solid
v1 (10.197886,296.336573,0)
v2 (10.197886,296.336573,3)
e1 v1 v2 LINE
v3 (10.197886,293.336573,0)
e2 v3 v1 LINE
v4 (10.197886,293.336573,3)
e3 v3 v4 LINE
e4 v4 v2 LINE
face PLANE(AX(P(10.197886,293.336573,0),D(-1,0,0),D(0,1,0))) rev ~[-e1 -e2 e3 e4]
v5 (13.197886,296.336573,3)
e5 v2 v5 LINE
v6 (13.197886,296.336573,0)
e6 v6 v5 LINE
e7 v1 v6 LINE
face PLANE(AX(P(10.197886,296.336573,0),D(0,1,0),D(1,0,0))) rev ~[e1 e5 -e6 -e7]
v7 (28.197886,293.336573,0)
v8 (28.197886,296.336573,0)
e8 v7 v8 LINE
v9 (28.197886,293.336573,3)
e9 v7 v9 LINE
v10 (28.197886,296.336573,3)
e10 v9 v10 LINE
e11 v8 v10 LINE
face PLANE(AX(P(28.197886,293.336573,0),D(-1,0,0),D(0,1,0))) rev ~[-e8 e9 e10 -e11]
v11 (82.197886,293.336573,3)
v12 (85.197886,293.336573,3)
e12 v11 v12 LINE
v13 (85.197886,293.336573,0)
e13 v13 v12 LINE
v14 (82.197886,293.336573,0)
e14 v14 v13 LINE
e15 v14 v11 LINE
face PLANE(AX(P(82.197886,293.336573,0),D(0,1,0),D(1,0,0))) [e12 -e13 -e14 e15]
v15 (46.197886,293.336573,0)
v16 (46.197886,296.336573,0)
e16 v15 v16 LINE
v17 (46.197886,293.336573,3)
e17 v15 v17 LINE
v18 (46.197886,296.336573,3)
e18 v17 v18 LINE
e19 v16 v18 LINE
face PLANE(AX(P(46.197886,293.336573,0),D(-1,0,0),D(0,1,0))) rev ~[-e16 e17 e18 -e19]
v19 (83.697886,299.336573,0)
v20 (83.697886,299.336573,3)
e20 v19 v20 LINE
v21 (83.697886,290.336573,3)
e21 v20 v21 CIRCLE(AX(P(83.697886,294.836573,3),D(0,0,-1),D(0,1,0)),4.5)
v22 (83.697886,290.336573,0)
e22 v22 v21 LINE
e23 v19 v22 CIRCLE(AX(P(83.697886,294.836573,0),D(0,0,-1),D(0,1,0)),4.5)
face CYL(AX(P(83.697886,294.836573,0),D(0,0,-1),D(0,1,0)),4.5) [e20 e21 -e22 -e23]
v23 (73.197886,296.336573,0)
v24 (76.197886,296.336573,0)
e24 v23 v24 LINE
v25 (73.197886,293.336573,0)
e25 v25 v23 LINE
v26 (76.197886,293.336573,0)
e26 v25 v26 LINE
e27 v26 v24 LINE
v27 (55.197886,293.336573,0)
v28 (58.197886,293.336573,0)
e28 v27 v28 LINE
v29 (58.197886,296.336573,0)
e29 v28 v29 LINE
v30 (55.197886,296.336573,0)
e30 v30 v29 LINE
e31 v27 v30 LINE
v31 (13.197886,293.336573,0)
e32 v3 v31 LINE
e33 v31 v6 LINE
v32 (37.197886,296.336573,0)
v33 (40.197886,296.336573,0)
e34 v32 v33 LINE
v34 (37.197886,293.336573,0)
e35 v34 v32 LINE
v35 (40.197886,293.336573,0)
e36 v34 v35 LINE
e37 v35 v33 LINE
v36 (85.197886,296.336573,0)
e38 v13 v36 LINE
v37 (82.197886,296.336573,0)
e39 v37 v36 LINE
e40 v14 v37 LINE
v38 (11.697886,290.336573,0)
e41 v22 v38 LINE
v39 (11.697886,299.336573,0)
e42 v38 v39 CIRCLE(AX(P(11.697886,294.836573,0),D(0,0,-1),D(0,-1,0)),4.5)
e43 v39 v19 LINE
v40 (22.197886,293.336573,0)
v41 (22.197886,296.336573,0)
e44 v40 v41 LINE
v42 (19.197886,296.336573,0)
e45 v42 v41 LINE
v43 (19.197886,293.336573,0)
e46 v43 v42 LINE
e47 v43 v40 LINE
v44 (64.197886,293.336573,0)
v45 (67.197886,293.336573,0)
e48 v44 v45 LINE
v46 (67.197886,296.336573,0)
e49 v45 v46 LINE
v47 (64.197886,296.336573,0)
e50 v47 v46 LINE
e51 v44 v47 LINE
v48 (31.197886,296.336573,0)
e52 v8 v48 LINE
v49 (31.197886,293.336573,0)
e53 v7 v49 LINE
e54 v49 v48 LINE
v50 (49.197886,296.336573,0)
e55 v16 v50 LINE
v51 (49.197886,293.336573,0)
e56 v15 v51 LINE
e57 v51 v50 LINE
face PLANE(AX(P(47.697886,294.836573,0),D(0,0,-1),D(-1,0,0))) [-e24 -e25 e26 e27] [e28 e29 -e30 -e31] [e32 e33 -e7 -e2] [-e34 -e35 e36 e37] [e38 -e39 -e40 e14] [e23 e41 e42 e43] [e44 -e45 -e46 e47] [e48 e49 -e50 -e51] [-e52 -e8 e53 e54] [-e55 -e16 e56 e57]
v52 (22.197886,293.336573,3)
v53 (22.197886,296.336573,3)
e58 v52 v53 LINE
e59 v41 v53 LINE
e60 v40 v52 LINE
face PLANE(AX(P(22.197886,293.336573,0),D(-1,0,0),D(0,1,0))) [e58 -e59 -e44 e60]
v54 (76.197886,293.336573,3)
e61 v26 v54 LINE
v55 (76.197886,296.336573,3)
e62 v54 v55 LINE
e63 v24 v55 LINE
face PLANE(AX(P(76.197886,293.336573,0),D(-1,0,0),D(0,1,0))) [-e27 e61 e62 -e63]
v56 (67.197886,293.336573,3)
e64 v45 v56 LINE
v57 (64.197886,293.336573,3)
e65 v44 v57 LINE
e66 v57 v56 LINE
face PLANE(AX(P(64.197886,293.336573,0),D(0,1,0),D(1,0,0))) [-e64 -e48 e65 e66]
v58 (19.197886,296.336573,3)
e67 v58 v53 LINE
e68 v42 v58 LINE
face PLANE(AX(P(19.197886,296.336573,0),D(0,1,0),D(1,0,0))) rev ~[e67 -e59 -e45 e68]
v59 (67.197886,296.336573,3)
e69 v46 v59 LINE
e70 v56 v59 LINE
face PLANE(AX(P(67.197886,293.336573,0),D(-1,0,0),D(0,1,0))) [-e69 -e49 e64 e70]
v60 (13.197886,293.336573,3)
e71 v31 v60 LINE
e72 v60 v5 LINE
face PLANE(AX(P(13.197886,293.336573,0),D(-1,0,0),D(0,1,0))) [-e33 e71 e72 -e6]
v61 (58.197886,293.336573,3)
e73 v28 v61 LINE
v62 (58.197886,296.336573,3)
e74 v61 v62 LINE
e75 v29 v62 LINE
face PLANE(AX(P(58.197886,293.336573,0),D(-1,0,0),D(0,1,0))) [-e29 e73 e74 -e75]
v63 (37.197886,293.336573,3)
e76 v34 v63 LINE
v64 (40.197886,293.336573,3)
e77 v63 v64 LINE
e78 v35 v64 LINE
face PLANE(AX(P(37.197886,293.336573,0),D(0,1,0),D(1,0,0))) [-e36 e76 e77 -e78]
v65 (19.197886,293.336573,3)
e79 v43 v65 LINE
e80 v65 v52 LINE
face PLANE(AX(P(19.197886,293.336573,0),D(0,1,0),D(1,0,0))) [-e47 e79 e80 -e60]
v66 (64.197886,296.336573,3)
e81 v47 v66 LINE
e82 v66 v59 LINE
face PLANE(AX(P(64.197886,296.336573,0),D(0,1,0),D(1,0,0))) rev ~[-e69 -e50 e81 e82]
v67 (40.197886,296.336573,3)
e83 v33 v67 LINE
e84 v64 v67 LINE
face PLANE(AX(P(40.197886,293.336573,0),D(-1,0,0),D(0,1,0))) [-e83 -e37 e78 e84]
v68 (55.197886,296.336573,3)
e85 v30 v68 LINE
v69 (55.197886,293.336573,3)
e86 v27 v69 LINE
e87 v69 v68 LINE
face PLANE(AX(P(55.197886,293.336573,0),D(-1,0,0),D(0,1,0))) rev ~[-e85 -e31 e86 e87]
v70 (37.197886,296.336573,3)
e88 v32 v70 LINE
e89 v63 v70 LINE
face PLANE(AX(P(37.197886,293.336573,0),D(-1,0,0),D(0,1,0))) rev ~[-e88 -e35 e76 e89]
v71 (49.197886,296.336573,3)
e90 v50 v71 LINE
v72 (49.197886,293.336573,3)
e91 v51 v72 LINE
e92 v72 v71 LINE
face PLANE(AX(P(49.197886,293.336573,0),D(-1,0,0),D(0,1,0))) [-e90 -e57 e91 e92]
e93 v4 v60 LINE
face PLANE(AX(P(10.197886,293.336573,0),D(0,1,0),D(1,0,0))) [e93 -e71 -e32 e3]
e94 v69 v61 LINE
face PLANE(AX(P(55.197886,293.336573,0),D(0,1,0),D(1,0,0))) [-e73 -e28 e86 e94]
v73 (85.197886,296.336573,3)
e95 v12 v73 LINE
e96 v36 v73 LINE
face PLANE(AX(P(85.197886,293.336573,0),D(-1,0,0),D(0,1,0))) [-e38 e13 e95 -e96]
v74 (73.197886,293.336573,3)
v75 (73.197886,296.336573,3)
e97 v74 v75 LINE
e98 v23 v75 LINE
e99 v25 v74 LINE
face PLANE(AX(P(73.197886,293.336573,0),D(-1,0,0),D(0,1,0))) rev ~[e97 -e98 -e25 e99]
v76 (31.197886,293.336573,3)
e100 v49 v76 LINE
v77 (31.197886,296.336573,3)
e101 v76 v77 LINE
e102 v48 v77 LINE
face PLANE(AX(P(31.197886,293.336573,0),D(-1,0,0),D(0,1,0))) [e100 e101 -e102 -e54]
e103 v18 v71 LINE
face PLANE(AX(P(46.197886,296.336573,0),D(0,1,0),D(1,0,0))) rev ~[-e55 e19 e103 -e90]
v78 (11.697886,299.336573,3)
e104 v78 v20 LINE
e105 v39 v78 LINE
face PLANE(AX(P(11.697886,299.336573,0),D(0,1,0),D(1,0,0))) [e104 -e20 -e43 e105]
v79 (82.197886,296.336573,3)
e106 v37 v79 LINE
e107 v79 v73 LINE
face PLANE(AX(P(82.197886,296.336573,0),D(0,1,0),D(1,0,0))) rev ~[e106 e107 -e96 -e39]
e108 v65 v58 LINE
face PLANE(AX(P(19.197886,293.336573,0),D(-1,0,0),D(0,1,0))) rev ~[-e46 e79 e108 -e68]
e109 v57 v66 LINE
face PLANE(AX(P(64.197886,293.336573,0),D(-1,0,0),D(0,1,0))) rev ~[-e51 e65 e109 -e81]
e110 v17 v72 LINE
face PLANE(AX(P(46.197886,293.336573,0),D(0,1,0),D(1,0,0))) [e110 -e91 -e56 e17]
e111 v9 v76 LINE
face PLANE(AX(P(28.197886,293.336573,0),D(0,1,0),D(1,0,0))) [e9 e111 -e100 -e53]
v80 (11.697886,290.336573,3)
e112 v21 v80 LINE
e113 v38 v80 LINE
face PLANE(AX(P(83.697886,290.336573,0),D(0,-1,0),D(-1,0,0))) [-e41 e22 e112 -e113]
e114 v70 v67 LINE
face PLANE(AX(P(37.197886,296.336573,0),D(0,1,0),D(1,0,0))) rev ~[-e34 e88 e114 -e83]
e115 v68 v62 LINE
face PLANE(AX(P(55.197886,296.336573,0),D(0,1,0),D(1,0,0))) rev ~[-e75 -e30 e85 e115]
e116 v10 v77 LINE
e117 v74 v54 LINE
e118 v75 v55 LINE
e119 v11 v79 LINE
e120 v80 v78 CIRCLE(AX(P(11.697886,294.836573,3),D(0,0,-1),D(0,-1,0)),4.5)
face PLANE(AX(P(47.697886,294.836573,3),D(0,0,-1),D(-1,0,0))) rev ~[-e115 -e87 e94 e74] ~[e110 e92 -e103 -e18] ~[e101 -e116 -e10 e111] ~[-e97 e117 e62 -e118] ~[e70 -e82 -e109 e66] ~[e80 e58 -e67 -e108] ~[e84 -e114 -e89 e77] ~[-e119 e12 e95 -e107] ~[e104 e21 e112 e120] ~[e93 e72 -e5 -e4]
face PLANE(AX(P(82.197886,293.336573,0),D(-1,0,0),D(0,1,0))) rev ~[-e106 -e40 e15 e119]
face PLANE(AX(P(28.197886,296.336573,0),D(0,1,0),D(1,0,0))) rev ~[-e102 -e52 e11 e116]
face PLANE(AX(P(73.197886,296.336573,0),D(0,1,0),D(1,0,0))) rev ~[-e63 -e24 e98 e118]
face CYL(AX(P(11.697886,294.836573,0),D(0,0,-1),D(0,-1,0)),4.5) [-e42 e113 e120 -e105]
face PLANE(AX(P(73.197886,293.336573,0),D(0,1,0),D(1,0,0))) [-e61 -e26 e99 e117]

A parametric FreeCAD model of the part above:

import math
import FreeCAD as App
import Part
import Sketcher
Q = App.Units.Quantity

doc = App.newDocument("Part")
body = doc.addObject("PartDesign::Body", "Body")

sketch1 = body.newObject("Sketcher::SketchObject", "Sketch")
sketch1.AttachmentSupport = (doc.getObject("XY_Plane"), [""])
sketch1.MapMode = "FlatFace"
sketch1.addGeometry(Part.LineSegment(App.Vector(83.697886, 299.336573, 0), App.Vector(11.697886, 299.336573, 0)), False)
sketch1.addGeometry(Part.ArcOfCircle(Part.Circle(App.Vector(11.697886, 294.836573, 0), App.Vector(0, 0, 1), 4.5), math.radians(90), math.radians(270)), False)
sketch1.addGeometry(Part.LineSegment(App.Vector(11.697886, 290.336573, 0), App.Vector(83.697886, 290.336573, 0)), False)
sketch1.addGeometry(Part.ArcOfCircle(Part.Circle(App.Vector(83.697886, 294.836573, 0), App.Vector(0, 0, 1), 4.5), math.radians(-90), math.radians(90)), False)
sketch1.addGeometry(Part.LineSegment(App.Vector(82.197886, 293.336573, 0), App.Vector(82.197886, 296.336573, 0)), False)
sketch1.addGeometry(Part.LineSegment(App.Vector(82.197886, 296.336573, 0), App.Vector(85.197886, 296.336573, 0)), False)
sketch1.addGeometry(Part.LineSegment(App.Vector(85.197886, 296.336573, 0), App.Vector(85.197886, 293.336573, 0)), False)
sketch1.addGeometry(Part.LineSegment(App.Vector(85.197886, 293.336573, 0), App.Vector(82.197886, 293.336573, 0)), False)
sketch1.addGeometry(Part.LineSegment(App.Vector(73.197886, 293.336573, 0), App.Vector(73.197886, 296.336573, 0)), False)
sketch1.addGeometry(Part.LineSegment(App.Vector(73.197886, 296.336573, 0), App.Vector(76.197886, 296.336573, 0)), False)
sketch1.addGeometry(Part.LineSegment(App.Vector(76.197886, 296.336573, 0), App.Vector(76.197886, 293.336573, 0)), False)
sketch1.addGeometry(Part.LineSegment(App.Vector(76.197886, 293.336573, 0), App.Vector(73.197886, 293.336573, 0)), False)
sketch1.addGeometry(Part.LineSegment(App.Vector(64.197886, 293.336573, 0), App.Vector(64.197886, 296.336573, 0)), False)
sketch1.addGeometry(Part.LineSegment(App.Vector(64.197886, 296.336573, 0), App.Vector(67.197886, 296.336573, 0)), False)
sketch1.addGeometry(Part.LineSegment(App.Vector(67.197886, 296.336573, 0), App.Vector(67.197886, 293.336573, 0)), False)
sketch1.addGeometry(Part.LineSegment(App.Vector(67.197886, 293.336573, 0), App.Vector(64.197886, 293.336573, 0)), False)
sketch1.addGeometry(Part.LineSegment(App.Vector(55.197886, 293.336573, 0), App.Vector(55.197886, 296.336573, 0)), False)
sketch1.addGeometry(Part.LineSegment(App.Vector(55.197886, 296.336573, 0), App.Vector(58.197886, 296.336573, 0)), False)
sketch1.addGeometry(Part.LineSegment(App.Vector(58.197886, 296.336573, 0), App.Vector(58.197886, 293.336573, 0)), False)
sketch1.addGeometry(Part.LineSegment(App.Vector(58.197886, 293.336573, 0), App.Vector(55.197886, 293.336573, 0)), False)
sketch1.addGeometry(Part.LineSegment(App.Vector(46.197886, 293.336573, 0), App.Vector(46.197886, 296.336573, 0)), False)
sketch1.addGeometry(Part.LineSegment(App.Vector(46.197886, 296.336573, 0), App.Vector(49.197886, 296.336573, 0)), False)
sketch1.addGeometry(Part.LineSegment(App.Vector(49.197886, 296.336573, 0), App.Vector(49.197886, 293.336573, 0)), False)
sketch1.addGeometry(Part.LineSegment(App.Vector(49.197886, 293.336573, 0), App.Vector(46.197886, 293.336573, 0)), False)
sketch1.addGeometry(Part.LineSegment(App.Vector(37.197886, 293.336573, 0), App.Vector(37.197886, 296.336573, 0)), False)
sketch1.addGeometry(Part.LineSegment(App.Vector(37.197886, 296.336573, 0), App.Vector(40.197886, 296.336573, 0)), False)
sketch1.addGeometry(Part.LineSegment(App.Vector(40.197886, 296.336573, 0), App.Vector(40.197886, 293.336573, 0)), False)
sketch1.addGeometry(Part.LineSegment(App.Vector(40.197886, 293.336573, 0), App.Vector(37.197886, 293.336573, 0)), False)
sketch1.addGeometry(Part.LineSegment(App.Vector(28.197886, 293.336573, 0), App.Vector(28.197886, 296.336573, 0)), False)
sketch1.addGeometry(Part.LineSegment(App.Vector(28.197886, 296.336573, 0), App.Vector(31.197886, 296.336573, 0)), False)
sketch1.addGeometry(Part.LineSegment(App.Vector(31.197886, 296.336573, 0), App.Vector(31.197886, 293.336573, 0)), False)
sketch1.addGeometry(Part.LineSegment(App.Vector(31.197886, 293.336573, 0), App.Vector(28.197886, 293.336573, 0)), False)
sketch1.addGeometry(Part.LineSegment(App.Vector(19.197886, 293.336573, 0), App.Vector(19.197886, 296.336573, 0)), False)
sketch1.addGeometry(Part.LineSegment(App.Vector(19.197886, 296.336573, 0), App.Vector(22.197886, 296.336573, 0)), False)
sketch1.addGeometry(Part.LineSegment(App.Vector(22.197886, 296.336573, 0), App.Vector(22.197886, 293.336573, 0)), False)
sketch1.addGeometry(Part.LineSegment(App.Vector(22.197886, 293.336573, 0), App.Vector(19.197886, 293.336573, 0)), False)
sketch1.addGeometry(Part.LineSegment(App.Vector(10.197886, 293.336573, 0), App.Vector(10.197886, 296.336573, 0)), False)
sketch1.addGeometry(Part.LineSegment(App.Vector(10.197886, 296.336573, 0), App.Vector(13.197886, 296.336573, 0)), False)
sketch1.addGeometry(Part.LineSegment(App.Vector(13.197886, 296.336573, 0), App.Vector(13.197886, 293.336573, 0)), False)
sketch1.addGeometry(Part.LineSegment(App.Vector(13.197886, 293.336573, 0), App.Vector(10.197886, 293.336573, 0)), False)
sketch1.addConstraint(Sketcher.Constraint("Tangent", 0, 2, 1, 1))
sketch1.addConstraint(Sketcher.Constraint("Tangent", 1, 2, 2, 1))
sketch1.addConstraint(Sketcher.Constraint("Tangent", 2, 2, 3, 1))
sketch1.addConstraint(Sketcher.Constraint("Tangent", 3, 2, 0, 1))
sketch1.addConstraint(Sketcher.Constraint("Coincident", 4, 2, 5, 1))
sketch1.addConstraint(Sketcher.Constraint("Coincident", 5, 2, 6, 1))
sketch1.addConstraint(Sketcher.Constraint("Coincident", 6, 2, 7, 1))
sketch1.addConstraint(Sketcher.Constraint("Coincident", 7, 2, 4, 1))
sketch1.addConstraint(Sketcher.Constraint("Coincident", 8, 2, 9, 1))
sketch1.addConstraint(Sketcher.Constraint("Coincident", 9, 2, 10, 1))
sketch1.addConstraint(Sketcher.Constraint("Coincident", 10, 2, 11, 1))
sketch1.addConstraint(Sketcher.Constraint("Coincident", 11, 2, 8, 1))
sketch1.addConstraint(Sketcher.Constraint("Coincident", 12, 2, 13, 1))
sketch1.addConstraint(Sketcher.Constraint("Coincident", 13, 2, 14, 1))
sketch1.addConstraint(Sketcher.Constraint("Coincident", 14, 2, 15, 1))
sketch1.addConstraint(Sketcher.Constraint("Coincident", 15, 2, 12, 1))
sketch1.addConstraint(Sketcher.Constraint("Coincident", 16, 2, 17, 1))
sketch1.addConstraint(Sketcher.Constraint("Coincident", 17, 2, 18, 1))
sketch1.addConstraint(Sketcher.Constraint("Coincident", 18, 2, 19, 1))
sketch1.addConstraint(Sketcher.Constraint("Coincident", 19, 2, 16, 1))
sketch1.addConstraint(Sketcher.Constraint("Coincident", 20, 2, 21, 1))
sketch1.addConstraint(Sketcher.Constraint("Coincident", 21, 2, 22, 1))
sketch1.addConstraint(Sketcher.Constraint("Coincident", 22, 2, 23, 1))
sketch1.addConstraint(Sketcher.Constraint("Coincident", 23, 2, 20, 1))
sketch1.addConstraint(Sketcher.Constraint("Coincident", 24, 2, 25, 1))
sketch1.addConstraint(Sketcher.Constraint("Coincident", 25, 2, 26, 1))
sketch1.addConstraint(Sketcher.Constraint("Coincident", 26, 2, 27, 1))
sketch1.addConstraint(Sketcher.Constraint("Coincident", 27, 2, 24, 1))
sketch1.addConstraint(Sketcher.Constraint("Coincident", 28, 2, 29, 1))
sketch1.addConstraint(Sketcher.Constraint("Coincident", 29, 2, 30, 1))
sketch1.addConstraint(Sketcher.Constraint("Coincident", 30, 2, 31, 1))
sketch1.addConstraint(Sketcher.Constraint("Coincident", 31, 2, 28, 1))
sketch1.addConstraint(Sketcher.Constraint("Coincident", 32, 2, 33, 1))
sketch1.addConstraint(Sketcher.Constraint("Coincident", 33, 2, 34, 1))
sketch1.addConstraint(Sketcher.Constraint("Coincident", 34, 2, 35, 1))
sketch1.addConstraint(Sketcher.Constraint("Coincident", 35, 2, 32, 1))
sketch1.addConstraint(Sketcher.Constraint("Coincident", 36, 2, 37, 1))
sketch1.addConstraint(Sketcher.Constraint("Coincident", 37, 2, 38, 1))
sketch1.addConstraint(Sketcher.Constraint("Coincident", 38, 2, 39, 1))
sketch1.addConstraint(Sketcher.Constraint("Coincident", 39, 2, 36, 1))
sketch1.addConstraint(Sketcher.Constraint("Horizontal", 0))
sketch1.addConstraint(Sketcher.Constraint("Horizontal", 2))
sketch1.addConstraint(Sketcher.Constraint("Vertical", 4))
sketch1.addConstraint(Sketcher.Constraint("Horizontal", 5))
sketch1.addConstraint(Sketcher.Constraint("Vertical", 6))
sketch1.addConstraint(Sketcher.Constraint("Horizontal", 7))
sketch1.addConstraint(Sketcher.Constraint("Vertical", 8))
sketch1.addConstraint(Sketcher.Constraint("Horizontal", 9))
sketch1.addConstraint(Sketcher.Constraint("Vertical", 10))
sketch1.addConstraint(Sketcher.Constraint("Horizontal", 11))
sketch1.addConstraint(Sketcher.Constraint("Vertical", 12))
sketch1.addConstraint(Sketcher.Constraint("Horizontal", 13))
sketch1.addConstraint(Sketcher.Constraint("Vertical", 14))
sketch1.addConstraint(Sketcher.Constraint("Horizontal", 15))
sketch1.addConstraint(Sketcher.Constraint("Vertical", 16))
sketch1.addConstraint(Sketcher.Constraint("Horizontal", 17))
sketch1.addConstraint(Sketcher.Constraint("Vertical", 18))
sketch1.addConstraint(Sketcher.Constraint("Horizontal", 19))
sketch1.addConstraint(Sketcher.Constraint("Vertical", 20))
sketch1.addConstraint(Sketcher.Constraint("Horizontal", 21))
sketch1.addConstraint(Sketcher.Constraint("Vertical", 22))
sketch1.addConstraint(Sketcher.Constraint("Horizontal", 23))
sketch1.addConstraint(Sketcher.Constraint("Vertical", 24))
sketch1.addConstraint(Sketcher.Constraint("Horizontal", 25))
sketch1.addConstraint(Sketcher.Constraint("Vertical", 26))
sketch1.addConstraint(Sketcher.Constraint("Horizontal", 27))
sketch1.addConstraint(Sketcher.Constraint("Vertical", 28))
sketch1.addConstraint(Sketcher.Constraint("Horizontal", 29))
sketch1.addConstraint(Sketcher.Constraint("Vertical", 30))
sketch1.addConstraint(Sketcher.Constraint("Horizontal", 31))
sketch1.addConstraint(Sketcher.Constraint("Vertical", 32))
sketch1.addConstraint(Sketcher.Constraint("Horizontal", 33))
sketch1.addConstraint(Sketcher.Constraint("Vertical", 34))
sketch1.addConstraint(Sketcher.Constraint("Horizontal", 35))
sketch1.addConstraint(Sketcher.Constraint("Vertical", 36))
sketch1.addConstraint(Sketcher.Constraint("Horizontal", 37))
sketch1.addConstraint(Sketcher.Constraint("Vertical", 38))
sketch1.addConstraint(Sketcher.Constraint("Horizontal", 39))
sketch1.addConstraint(Sketcher.Constraint("Horizontal", 5, 2, 8, 2))
sketch1.addConstraint(Sketcher.Constraint("Horizontal", 7, 2, 10, 2))
sketch1.addConstraint(Sketcher.Constraint("Horizontal", 9, 2, 12, 2))
sketch1.addConstraint(Sketcher.Constraint("Horizontal", 11, 2, 14, 2))
sketch1.addConstraint(Sketcher.Constraint("Horizontal", 13, 2, 16, 2))
sketch1.addConstraint(Sketcher.Constraint("Horizontal", 15, 2, 18, 2))
sketch1.addConstraint(Sketcher.Constraint("Horizontal", 17, 2, 20, 2))
sketch1.addConstraint(Sketcher.Constraint("Horizontal", 19, 2, 22, 2))
sketch1.addConstraint(Sketcher.Constraint("Horizontal", 21, 2, 24, 2))
sketch1.addConstraint(Sketcher.Constraint("Horizontal", 23, 2, 26, 2))
sketch1.addConstraint(Sketcher.Constraint("Horizontal", 25, 2, 28, 2))
sketch1.addConstraint(Sketcher.Constraint("Horizontal", 27, 2, 30, 2))
sketch1.addConstraint(Sketcher.Constraint("Horizontal", 29, 2, 32, 2))
sketch1.addConstraint(Sketcher.Constraint("Horizontal", 31, 2, 34, 2))
sketch1.addConstraint(Sketcher.Constraint("Horizontal", 33, 2, 36, 2))
sketch1.addConstraint(Sketcher.Constraint("Horizontal", 35, 2, 38, 2))
sketch1.addConstraint(Sketcher.Constraint("Equal", 7, 9))
sketch1.addConstraint(Sketcher.Constraint("Equal", 11, 13))
sketch1.addConstraint(Sketcher.Constraint("Equal", 15, 17))
sketch1.addConstraint(Sketcher.Constraint("Equal", 19, 21))
sketch1.addConstraint(Sketcher.Constraint("Equal", 23, 25))
sketch1.addConstraint(Sketcher.Constraint("Equal", 27, 29))
sketch1.addConstraint(Sketcher.Constraint("Equal", 31, 33))
sketch1.addConstraint(Sketcher.Constraint("Equal", 35, 37))
sketch1.addConstraint(Sketcher.Constraint("Equal", 39, 4))
sketch1.addConstraint(Sketcher.Constraint("Radius", 1, Q("4.5 mm")))
sketch1.addConstraint(Sketcher.Constraint("DistanceX", 0, 2, 0, 1, Q("72 mm")))
sketch1.addConstraint(Sketcher.Constraint("DistanceX", 5, 1, 5, 2, Q("3 mm")))
sketch1.addConstraint(Sketcher.Constraint("DistanceY", 4, 2, 3, 2, Q("3 mm")))
sketch1.addConstraint(Sketcher.Constraint("DistanceX", 8, 2, 4, 2, Q("9 mm")))
sketch1.addConstraint(Sketcher.Constraint("DistanceX", 12, 2, 8, 2, Q("9 mm")))
sketch1.addConstraint(Sketcher.Constraint("DistanceX", 16, 2, 12, 2, Q("9 mm")))
sketch1.addConstraint(Sketcher.Constraint("DistanceX", 20, 2, 16, 2, Q("9 mm")))
sketch1.addConstraint(Sketcher.Constraint("DistanceX", 24, 2, 20, 2, Q("9 mm")))
sketch1.addConstraint(Sketcher.Constraint("DistanceX", 28, 2, 24, 2, Q("9 mm")))
sketch1.addConstraint(Sketcher.Constraint("DistanceX", 32, 2, 28, 2, Q("9 mm")))
sketch1.addConstraint(Sketcher.Constraint("DistanceX", 36, 2, 32, 2, Q("9 mm")))
sketch1.addConstraint(Sketcher.Constraint("DistanceX", 4, 2, 3, 3, Q("1.5 mm")))
sketch1.addConstraint(Sketcher.Constraint("DistanceX", -1, 1, 1, 3, Q("11.697886 mm")))
sketch1.addConstraint(Sketcher.Constraint("DistanceY", -1, 1, 1, 3, Q("294.836573 mm")))
pad1 = body.newObject("PartDesign::Pad", "Pad")
pad1.Profile = sketch1
pad1.Length = 3

doc.recompute()
